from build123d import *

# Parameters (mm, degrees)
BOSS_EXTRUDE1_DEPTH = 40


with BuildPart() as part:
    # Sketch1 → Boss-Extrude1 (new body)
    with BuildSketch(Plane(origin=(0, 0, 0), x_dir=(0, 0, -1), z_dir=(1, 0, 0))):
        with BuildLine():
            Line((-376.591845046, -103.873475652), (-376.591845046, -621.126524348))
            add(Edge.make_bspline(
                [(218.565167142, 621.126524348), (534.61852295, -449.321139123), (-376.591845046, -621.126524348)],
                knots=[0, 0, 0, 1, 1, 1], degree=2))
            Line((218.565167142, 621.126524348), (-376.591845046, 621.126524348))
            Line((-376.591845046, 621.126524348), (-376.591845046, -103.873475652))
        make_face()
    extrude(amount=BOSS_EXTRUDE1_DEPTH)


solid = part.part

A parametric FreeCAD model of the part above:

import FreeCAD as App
import Part
import Sketcher
from FreeCAD import Vector

doc = App.newDocument("Part")
body = doc.addObject("PartDesign::Body", "Body")

# Sketch on YZ plane
sketch1 = body.newObject("Sketcher::SketchObject", "Sketch")
sketch1.AttachmentSupport = (doc.getObject("YZ_Plane"), [""])
sketch1.MapMode = "FlatFace"
sketch1.addGeometry(Part.BSplineCurve([Vector(621.126524, -218.565167, 0), Vector(-449.321139, -534.618523, 0), Vector(-621.126524, 376.591845, 0)], [3, 3], [0, 1], False, 2, [1, 1, 1], False), False)
sketch1.addGeometry(Part.LineSegment(Vector(621.126524, -218.565167, 0), Vector(621.126524, 376.591845, 0)), False)
sketch1.addGeometry(Part.LineSegment(Vector(621.126524, 376.591845, 0), Vector(-621.126524, 376.591845, 0)), False)
sketch1.addConstraint(Sketcher.Constraint("Block", 0))
sketch1.addConstraint(Sketcher.Constraint("Coincident", 0, 1, 1, 1))
sketch1.addConstraint(Sketcher.Constraint("Coincident", 1, 2, 2, 1))
sketch1.addConstraint(Sketcher.Constraint("Coincident", 2, 2, 0, 2))
sketch1.addConstraint(Sketcher.Constraint("Vertical", 1))
sketch1.addConstraint(Sketcher.Constraint("Horizontal", 2))
pad1 = body.newObject("PartDesign::Pad", "Pad")
pad1.Profile = sketch1
pad1.Length = 40

doc.recompute()
